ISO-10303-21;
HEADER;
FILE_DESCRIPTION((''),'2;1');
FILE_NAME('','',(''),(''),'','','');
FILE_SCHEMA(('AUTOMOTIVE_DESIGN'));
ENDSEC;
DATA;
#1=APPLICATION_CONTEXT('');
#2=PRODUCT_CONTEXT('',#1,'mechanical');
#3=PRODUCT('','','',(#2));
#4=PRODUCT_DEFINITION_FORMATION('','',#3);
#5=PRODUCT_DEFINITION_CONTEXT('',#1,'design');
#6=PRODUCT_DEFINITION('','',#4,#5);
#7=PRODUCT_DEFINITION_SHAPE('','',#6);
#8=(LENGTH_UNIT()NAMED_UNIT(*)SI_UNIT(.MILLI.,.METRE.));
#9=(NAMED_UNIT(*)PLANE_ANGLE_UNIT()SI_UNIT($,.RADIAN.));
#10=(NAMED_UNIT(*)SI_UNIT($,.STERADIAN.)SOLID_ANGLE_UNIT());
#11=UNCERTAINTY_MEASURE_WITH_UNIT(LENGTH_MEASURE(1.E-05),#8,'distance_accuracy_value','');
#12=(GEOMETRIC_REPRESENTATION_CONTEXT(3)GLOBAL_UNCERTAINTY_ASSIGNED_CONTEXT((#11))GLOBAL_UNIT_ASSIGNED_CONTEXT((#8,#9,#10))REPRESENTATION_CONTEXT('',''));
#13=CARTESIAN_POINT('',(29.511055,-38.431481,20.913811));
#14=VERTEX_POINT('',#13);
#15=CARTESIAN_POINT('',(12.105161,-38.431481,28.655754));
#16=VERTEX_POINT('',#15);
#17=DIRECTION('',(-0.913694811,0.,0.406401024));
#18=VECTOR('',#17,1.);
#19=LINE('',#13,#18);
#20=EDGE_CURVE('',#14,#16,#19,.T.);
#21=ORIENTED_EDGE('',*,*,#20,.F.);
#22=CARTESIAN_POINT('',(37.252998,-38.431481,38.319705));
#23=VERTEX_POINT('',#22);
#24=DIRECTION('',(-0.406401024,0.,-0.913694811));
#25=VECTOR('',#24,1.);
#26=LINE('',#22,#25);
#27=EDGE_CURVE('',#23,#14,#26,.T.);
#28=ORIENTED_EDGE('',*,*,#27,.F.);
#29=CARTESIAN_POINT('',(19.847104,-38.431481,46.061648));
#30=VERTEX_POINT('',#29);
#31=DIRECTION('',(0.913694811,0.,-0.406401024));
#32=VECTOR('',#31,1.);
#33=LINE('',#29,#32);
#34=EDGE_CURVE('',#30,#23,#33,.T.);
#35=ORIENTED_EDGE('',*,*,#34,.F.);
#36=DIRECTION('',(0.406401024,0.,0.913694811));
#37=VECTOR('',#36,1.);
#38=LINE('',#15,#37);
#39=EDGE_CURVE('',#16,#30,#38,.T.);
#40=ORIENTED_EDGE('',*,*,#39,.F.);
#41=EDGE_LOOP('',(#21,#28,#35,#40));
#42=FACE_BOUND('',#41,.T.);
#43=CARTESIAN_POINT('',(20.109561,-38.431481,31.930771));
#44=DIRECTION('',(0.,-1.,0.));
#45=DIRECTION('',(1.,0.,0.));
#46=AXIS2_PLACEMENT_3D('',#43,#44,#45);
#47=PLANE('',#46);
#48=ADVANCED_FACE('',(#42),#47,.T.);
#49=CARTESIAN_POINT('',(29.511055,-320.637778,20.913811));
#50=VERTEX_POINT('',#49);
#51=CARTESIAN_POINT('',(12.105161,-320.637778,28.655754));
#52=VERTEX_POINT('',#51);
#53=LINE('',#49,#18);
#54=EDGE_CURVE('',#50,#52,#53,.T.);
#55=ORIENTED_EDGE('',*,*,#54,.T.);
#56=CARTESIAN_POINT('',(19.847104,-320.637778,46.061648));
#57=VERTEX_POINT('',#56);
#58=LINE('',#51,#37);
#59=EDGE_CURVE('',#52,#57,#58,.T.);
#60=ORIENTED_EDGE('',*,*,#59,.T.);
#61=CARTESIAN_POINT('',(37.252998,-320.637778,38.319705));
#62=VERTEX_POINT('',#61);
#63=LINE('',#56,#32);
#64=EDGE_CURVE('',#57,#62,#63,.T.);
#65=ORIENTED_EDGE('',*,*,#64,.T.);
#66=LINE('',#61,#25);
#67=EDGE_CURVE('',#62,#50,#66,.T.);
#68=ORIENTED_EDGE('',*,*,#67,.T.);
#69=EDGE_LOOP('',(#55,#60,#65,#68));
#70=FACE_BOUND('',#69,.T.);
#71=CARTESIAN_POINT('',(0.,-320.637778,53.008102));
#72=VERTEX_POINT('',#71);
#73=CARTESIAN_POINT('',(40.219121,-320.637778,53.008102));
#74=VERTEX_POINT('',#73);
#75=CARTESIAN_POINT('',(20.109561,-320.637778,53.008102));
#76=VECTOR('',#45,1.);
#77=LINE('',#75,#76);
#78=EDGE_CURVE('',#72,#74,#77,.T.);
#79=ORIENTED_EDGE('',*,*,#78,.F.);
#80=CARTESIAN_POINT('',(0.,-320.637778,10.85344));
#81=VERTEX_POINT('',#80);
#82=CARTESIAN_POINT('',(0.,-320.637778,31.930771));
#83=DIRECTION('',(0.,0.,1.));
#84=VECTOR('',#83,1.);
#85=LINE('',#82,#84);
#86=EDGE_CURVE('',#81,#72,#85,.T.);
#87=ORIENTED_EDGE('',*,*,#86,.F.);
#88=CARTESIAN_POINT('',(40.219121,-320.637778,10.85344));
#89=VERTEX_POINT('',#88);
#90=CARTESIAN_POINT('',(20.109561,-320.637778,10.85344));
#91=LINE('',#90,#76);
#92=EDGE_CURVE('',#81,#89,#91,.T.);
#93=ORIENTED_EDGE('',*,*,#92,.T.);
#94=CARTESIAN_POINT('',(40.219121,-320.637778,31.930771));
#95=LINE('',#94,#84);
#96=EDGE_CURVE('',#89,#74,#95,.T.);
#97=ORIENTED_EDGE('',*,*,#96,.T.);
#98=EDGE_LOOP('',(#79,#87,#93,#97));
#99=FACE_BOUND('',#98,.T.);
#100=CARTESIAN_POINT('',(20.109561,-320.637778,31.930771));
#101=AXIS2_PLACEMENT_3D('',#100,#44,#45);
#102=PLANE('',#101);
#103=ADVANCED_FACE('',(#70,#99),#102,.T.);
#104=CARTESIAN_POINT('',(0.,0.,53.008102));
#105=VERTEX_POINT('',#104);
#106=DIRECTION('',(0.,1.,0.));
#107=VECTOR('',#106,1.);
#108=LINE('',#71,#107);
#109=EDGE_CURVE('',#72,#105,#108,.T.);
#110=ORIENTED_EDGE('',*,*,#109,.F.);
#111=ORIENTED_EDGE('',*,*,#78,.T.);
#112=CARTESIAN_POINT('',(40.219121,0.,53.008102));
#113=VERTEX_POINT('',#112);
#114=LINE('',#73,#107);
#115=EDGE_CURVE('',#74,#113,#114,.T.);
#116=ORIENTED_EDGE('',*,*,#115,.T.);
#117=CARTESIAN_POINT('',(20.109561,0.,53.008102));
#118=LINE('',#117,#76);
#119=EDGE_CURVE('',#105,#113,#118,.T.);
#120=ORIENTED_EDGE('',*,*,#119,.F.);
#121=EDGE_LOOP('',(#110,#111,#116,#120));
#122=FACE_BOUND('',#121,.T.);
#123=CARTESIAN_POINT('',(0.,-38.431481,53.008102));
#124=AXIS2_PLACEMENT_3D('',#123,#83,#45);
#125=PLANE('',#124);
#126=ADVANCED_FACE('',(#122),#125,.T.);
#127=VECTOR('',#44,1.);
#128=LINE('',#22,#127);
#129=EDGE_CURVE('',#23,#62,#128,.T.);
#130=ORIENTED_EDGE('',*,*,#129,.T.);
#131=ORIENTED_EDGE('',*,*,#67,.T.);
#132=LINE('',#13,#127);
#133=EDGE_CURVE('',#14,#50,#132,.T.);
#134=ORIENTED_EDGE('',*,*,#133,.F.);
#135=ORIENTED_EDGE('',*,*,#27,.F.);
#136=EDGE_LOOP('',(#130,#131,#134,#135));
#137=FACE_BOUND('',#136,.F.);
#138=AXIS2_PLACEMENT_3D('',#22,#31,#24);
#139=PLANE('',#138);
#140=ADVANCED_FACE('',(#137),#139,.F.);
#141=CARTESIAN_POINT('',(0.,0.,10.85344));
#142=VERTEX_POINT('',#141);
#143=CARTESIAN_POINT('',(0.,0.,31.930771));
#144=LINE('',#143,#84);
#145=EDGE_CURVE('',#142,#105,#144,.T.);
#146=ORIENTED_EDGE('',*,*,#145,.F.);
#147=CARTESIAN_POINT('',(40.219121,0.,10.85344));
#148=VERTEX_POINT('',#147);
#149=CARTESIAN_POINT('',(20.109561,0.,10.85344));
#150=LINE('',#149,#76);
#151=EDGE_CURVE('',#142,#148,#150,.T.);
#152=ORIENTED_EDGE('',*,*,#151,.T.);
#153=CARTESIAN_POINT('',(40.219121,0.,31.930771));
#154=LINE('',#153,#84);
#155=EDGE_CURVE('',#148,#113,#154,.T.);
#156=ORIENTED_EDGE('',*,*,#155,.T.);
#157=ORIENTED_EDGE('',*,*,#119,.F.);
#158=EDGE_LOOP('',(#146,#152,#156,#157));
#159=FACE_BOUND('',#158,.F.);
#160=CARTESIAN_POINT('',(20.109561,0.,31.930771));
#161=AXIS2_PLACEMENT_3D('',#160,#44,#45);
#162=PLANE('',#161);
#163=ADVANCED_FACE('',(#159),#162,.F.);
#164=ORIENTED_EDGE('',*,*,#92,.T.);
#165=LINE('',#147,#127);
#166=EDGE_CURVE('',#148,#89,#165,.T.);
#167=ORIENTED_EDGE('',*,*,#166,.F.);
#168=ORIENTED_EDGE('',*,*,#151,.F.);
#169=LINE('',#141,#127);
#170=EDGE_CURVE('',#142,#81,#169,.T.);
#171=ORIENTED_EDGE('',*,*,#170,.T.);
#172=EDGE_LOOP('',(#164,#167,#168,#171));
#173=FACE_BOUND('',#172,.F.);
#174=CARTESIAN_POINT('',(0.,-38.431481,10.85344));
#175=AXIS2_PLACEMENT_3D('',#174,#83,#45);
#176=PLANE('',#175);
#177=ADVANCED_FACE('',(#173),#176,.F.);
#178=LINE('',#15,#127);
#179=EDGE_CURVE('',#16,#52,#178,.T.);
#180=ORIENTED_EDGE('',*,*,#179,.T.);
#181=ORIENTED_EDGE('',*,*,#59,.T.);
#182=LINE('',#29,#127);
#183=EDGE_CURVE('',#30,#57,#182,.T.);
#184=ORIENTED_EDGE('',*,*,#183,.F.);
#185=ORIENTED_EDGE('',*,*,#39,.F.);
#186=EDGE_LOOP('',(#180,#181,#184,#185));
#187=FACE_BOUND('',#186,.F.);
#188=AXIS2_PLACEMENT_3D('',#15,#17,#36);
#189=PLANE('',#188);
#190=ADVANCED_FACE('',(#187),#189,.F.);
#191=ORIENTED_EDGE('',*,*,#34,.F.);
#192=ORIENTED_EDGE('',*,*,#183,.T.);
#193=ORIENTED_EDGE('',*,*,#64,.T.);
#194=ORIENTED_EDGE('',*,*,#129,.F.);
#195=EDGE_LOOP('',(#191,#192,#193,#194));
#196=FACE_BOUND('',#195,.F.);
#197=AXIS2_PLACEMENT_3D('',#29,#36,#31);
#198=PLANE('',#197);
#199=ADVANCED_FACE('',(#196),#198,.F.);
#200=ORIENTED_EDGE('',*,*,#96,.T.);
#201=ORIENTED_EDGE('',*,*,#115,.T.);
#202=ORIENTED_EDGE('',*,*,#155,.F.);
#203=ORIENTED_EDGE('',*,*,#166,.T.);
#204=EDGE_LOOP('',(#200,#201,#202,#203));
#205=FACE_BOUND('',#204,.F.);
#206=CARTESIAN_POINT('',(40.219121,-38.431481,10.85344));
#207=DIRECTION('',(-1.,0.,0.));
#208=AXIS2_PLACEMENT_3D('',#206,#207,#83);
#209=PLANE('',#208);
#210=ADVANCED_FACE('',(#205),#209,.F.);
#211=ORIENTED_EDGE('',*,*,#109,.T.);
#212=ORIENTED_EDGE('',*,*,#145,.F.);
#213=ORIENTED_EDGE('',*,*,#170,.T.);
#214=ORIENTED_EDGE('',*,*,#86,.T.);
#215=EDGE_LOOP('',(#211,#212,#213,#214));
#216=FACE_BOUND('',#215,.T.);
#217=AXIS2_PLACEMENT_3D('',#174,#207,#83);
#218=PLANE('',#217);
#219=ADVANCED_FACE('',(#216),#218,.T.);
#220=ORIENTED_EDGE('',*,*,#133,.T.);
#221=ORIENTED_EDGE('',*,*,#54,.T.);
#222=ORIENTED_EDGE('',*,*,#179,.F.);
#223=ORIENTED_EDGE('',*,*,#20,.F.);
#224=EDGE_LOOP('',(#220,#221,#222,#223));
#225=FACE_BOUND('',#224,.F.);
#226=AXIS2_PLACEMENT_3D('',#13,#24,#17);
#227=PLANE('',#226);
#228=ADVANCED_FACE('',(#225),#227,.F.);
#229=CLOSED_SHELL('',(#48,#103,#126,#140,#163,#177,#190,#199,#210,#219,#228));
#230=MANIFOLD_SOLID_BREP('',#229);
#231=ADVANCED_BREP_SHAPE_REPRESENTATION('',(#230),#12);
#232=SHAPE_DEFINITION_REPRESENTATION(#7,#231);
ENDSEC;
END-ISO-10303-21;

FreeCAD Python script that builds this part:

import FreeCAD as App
import Part
import Sketcher
Q = App.Units.Quantity


def add_polygon(sketch, points):
    """Adds a closed chain of lines whose ends are joined by coincident constraints."""
    first, n = sketch.GeometryCount, len(points)
    for a, b in zip(points, points[1:] + points[:1]):
        sketch.addGeometry(Part.LineSegment(App.Vector(*a, 0), App.Vector(*b, 0)), False)
    for i in range(n):
        sketch.addConstraint(Sketcher.Constraint("Coincident", first + i, 2, first + (i + 1) % n, 1))

doc = App.newDocument("Part")
body = doc.addObject("PartDesign::Body", "Body")

sketch1 = doc.addObject("Sketcher::SketchObject", "Sketch")
body.addObject(sketch1)
sketch1.AttachmentSupport = (doc.XZ_Plane, [""])
sketch1.MapMode = "FlatFace"
add_polygon(sketch1, [(0, 53), (0, 11), (40, 11), (40, 53)])
sketch1.addConstraint([
    Sketcher.Constraint("Vertical", 0),
    Sketcher.Constraint("Horizontal", 1),
    Sketcher.Constraint("Vertical", 2),
    Sketcher.Constraint("Horizontal", 3),
    Sketcher.Constraint("PointOnObject", 0, 2, -2),
    Sketcher.Constraint("DistanceX", 1, 1, 1, 2, Q("40.219121 mm")),
    Sketcher.Constraint("DistanceY", 0, 2, 0, 1, Q("42.154662 mm")),
    Sketcher.Constraint("DistanceY", -1, 1, 0, 2, Q("10.85344 mm")),
])
pad1 = doc.addObject("PartDesign::Pad", "Pad")
body.addObject(pad1)
pad1.Profile = sketch1
pad1.Length = 38.431481

sketch2 = doc.addObject("Sketcher::SketchObject", "Sketch001")
body.addObject(sketch2)
sketch2.AttachmentSupport = (doc.XZ_Plane, [""])
sketch2.MapMode = "FlatFace"
sketch2.AttachmentOffset = App.Placement(App.Vector(0, 0, 38.431481), App.Rotation())
add_polygon(sketch2, [(0, 53), (0, 11), (40, 11), (40, 53)])
add_polygon(sketch2, [(20, 46), (37, 38), (30, 21), (12, 29)])
sketch2.addConstraint([
    Sketcher.Constraint("Vertical", 0),
    Sketcher.Constraint("Horizontal", 1),
    Sketcher.Constraint("Vertical", 2),
    Sketcher.Constraint("Horizontal", 3),
    Sketcher.Constraint("PointOnObject", 0, 2, -2),
    Sketcher.Constraint("Perpendicular", 4, 5),
    Sketcher.Constraint("Perpendicular", 5, 6),
    Sketcher.Constraint("Perpendicular", 6, 7),
    Sketcher.Constraint("Equal", 4, 5),
    Sketcher.Constraint("DistanceX", 1, 1, 1, 2, Q("40.219121 mm")),
    Sketcher.Constraint("Distance", 4, Q("19.050009 mm")),
    Sketcher.Constraint("DistanceY", 0, 2, 0, 1, Q("42.154662 mm")),
    Sketcher.Constraint("DistanceY", -1, 1, 0, 2, Q("10.85344 mm")),
    Sketcher.Constraint("DistanceY", -1, 1, 5, 2, Q("20.913811 mm")),
    Sketcher.Constraint("DistanceX", -1, 1, 6, 2, Q("12.105161 mm")),
    Sketcher.Constraint("DistanceY", 6, 2, 4, 2, Q("9.663951 mm")),
])
pad2 = doc.addObject("PartDesign::Pad", "Pad001")
body.addObject(pad2)
pad2.Profile = sketch2
pad2.Length = 282.206297

doc.recompute()
